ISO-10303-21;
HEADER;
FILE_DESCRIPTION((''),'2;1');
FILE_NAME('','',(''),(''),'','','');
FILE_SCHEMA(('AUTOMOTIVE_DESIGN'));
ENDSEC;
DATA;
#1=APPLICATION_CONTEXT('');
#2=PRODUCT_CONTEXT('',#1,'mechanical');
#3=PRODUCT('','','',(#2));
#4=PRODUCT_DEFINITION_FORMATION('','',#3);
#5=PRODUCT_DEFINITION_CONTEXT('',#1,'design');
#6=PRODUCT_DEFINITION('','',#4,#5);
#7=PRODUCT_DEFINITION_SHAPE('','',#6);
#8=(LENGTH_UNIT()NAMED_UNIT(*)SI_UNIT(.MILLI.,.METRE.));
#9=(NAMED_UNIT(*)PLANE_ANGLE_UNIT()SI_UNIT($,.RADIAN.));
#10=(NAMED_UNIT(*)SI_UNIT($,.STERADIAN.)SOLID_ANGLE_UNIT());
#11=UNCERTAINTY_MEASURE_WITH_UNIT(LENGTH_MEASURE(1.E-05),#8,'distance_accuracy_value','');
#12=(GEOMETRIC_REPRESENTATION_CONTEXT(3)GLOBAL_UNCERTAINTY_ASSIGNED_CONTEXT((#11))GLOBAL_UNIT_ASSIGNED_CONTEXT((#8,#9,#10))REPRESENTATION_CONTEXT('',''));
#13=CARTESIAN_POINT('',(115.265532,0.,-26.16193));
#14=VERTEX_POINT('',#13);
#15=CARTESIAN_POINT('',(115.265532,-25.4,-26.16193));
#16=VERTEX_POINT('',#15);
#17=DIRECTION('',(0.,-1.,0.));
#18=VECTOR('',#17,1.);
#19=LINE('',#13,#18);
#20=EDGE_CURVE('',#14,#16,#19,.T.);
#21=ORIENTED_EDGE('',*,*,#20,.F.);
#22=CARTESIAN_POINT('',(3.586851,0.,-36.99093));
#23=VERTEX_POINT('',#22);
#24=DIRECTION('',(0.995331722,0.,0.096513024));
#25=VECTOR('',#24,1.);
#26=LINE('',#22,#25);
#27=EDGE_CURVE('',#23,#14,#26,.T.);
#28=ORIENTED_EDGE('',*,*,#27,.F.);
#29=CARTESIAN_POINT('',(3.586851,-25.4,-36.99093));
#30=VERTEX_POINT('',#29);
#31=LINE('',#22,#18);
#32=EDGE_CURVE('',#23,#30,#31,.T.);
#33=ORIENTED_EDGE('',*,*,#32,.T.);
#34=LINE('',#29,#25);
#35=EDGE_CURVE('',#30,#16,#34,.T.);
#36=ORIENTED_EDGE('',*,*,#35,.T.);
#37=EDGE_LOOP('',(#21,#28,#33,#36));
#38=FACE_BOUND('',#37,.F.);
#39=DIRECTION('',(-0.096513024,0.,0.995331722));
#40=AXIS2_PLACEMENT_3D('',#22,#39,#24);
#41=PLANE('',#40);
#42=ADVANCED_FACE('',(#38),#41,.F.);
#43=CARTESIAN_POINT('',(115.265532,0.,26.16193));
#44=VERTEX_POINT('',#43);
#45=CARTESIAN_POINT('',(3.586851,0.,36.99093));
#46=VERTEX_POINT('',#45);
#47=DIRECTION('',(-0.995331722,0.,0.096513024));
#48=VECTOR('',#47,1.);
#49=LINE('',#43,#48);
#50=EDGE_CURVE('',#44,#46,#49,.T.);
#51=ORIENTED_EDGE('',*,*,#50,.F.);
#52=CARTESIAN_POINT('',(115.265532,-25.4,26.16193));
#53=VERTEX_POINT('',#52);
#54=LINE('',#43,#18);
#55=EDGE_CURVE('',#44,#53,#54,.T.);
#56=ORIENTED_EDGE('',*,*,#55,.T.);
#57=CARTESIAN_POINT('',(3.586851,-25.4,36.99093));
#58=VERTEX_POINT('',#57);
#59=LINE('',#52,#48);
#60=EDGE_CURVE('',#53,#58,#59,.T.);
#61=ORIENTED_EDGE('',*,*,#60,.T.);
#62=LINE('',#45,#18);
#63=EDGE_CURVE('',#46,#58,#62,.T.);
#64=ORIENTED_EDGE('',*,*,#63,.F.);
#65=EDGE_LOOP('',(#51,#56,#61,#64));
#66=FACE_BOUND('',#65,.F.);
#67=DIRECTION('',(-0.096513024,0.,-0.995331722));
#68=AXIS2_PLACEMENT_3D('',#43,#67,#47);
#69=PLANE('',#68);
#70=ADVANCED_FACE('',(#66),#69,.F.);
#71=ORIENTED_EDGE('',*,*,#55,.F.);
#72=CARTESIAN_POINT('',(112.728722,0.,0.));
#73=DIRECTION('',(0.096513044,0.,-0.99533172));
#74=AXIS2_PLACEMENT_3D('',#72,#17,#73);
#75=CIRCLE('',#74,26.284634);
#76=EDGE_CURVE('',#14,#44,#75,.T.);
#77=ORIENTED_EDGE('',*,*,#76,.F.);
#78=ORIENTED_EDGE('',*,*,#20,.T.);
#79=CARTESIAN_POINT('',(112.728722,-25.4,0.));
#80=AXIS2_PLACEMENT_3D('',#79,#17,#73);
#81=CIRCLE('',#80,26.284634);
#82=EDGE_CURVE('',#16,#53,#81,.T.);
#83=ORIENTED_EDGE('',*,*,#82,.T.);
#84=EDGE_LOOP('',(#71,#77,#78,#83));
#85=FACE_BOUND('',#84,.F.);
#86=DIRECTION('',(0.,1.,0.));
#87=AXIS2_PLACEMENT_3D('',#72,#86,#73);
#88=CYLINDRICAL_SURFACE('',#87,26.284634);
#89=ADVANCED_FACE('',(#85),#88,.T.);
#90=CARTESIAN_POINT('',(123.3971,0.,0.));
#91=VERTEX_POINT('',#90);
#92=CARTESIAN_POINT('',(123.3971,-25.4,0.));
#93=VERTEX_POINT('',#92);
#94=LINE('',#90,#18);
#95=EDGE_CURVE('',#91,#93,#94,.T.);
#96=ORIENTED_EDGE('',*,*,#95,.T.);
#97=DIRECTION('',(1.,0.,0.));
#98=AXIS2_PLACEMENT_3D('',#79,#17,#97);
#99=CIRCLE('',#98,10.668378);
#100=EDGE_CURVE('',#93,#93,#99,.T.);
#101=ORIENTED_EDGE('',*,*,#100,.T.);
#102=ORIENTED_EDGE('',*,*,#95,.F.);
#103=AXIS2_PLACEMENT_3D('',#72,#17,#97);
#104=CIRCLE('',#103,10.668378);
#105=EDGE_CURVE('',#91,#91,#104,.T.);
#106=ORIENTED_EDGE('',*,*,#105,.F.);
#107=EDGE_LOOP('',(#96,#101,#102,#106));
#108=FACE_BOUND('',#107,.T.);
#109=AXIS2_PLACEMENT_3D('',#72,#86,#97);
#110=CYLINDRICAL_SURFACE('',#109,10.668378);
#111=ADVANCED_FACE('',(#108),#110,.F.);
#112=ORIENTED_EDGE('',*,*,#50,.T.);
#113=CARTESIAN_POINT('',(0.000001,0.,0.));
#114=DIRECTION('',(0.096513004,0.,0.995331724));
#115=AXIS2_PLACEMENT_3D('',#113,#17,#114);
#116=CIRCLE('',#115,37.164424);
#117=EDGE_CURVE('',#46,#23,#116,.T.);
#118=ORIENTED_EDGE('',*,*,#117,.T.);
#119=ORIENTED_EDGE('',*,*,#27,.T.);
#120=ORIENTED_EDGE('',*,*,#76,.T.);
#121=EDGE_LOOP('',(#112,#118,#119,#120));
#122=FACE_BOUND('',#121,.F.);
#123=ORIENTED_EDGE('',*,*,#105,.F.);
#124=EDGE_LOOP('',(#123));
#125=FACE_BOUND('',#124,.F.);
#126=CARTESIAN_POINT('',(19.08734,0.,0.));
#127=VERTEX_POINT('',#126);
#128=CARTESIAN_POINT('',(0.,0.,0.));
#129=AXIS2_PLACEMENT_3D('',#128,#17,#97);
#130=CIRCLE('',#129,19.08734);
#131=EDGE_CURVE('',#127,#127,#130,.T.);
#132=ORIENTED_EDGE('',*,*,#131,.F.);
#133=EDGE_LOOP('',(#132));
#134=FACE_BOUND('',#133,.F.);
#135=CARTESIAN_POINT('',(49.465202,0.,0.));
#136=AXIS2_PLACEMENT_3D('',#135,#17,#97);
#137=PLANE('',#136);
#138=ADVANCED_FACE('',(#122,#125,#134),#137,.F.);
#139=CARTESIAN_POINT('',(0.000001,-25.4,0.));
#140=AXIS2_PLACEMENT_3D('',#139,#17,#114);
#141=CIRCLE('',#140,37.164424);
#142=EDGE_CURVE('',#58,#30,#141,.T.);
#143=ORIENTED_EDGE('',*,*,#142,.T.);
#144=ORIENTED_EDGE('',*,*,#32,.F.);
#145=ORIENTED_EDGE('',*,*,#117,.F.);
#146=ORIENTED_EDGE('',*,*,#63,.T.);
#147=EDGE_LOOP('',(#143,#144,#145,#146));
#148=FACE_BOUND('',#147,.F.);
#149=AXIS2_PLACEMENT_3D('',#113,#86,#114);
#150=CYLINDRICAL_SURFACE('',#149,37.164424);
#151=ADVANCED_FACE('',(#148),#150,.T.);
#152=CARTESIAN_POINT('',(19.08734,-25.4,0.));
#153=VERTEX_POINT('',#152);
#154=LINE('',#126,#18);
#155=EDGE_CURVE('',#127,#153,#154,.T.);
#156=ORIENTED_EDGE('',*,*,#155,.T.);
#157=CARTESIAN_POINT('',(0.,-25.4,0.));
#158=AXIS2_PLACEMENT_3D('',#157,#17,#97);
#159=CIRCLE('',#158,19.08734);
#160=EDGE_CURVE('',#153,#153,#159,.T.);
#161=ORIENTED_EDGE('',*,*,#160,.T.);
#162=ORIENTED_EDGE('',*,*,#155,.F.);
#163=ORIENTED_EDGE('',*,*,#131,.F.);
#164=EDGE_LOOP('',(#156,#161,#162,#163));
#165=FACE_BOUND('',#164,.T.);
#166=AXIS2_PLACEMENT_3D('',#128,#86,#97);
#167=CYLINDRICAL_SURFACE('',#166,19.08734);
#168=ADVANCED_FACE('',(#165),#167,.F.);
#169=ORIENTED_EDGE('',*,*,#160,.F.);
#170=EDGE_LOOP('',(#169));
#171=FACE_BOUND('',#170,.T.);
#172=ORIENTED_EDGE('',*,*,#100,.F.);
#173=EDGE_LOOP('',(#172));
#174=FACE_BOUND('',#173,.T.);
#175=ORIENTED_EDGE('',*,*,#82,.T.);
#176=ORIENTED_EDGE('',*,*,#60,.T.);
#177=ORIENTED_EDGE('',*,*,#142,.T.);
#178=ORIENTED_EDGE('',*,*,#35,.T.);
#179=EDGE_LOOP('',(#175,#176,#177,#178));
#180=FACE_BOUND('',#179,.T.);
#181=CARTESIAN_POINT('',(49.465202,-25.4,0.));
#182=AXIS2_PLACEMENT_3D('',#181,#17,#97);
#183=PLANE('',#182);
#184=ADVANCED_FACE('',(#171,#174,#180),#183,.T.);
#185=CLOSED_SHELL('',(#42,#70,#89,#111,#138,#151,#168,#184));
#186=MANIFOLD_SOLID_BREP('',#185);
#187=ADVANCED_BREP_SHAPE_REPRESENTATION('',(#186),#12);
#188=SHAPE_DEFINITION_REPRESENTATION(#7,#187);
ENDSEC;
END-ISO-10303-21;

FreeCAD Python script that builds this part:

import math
import FreeCAD as App
import Part
import Sketcher

V = App.Vector
Q = App.Units.Quantity

doc = App.newDocument("Part")
body = doc.addObject("PartDesign::Body", "Body")

sketch1 = body.newObject("Sketcher::SketchObject", "Sketch")
sketch1.AttachmentSupport = (doc.getObject("XZ_Plane"), [""])
sketch1.MapMode = "FlatFace"
sketch1.addGeometry([
    Part.LineSegment(V(115, 26, 0), V(4, 37, 0)),
    Part.ArcOfCircle(Part.Circle(V(0, 0, 0), V(0, 0, 1), 37), math.radians(84), math.radians(276)),
    Part.LineSegment(V(4, -37, 0), V(115, -26, 0)),
    Part.ArcOfCircle(Part.Circle(V(113, 0, 0), V(0, 0, 1), 26), math.radians(-84), math.radians(84)),
    Part.Circle(V(0, 0, 0), V(0, 0, 1), 19),
    Part.Circle(V(113, 0, 0), V(0, 0, 1), 11),
], False)
sketch1.addConstraint([
    Sketcher.Constraint("Tangent", 0, 2, 1, 1),
    Sketcher.Constraint("Tangent", 1, 2, 2, 1),
    Sketcher.Constraint("Tangent", 2, 2, 3, 1),
    Sketcher.Constraint("Tangent", 3, 2, 0, 1),
    Sketcher.Constraint("Coincident", 1, 3, -1, 1),
    Sketcher.Constraint("Coincident", 4, 3, -1, 1),
    Sketcher.Constraint("Coincident", 5, 3, 3, 3),
    Sketcher.Constraint("PointOnObject", 3, 3, -1),
    Sketcher.Constraint("Diameter", 4, Q("38.17468 mm")),
    Sketcher.Constraint("Diameter", 5, Q("21.336756 mm")),
    Sketcher.Constraint("Radius", 1, Q("37.164424 mm")),
    Sketcher.Constraint("Radius", 3, Q("26.284634 mm")),
    Sketcher.Constraint("DistanceX", -1, 1, 3, 3, Q("112.728722 mm")),
])
pad1 = body.newObject("PartDesign::Pad", "Pad")
pad1.Profile = sketch1
pad1.Length = Q("1 in")

doc.recompute()
